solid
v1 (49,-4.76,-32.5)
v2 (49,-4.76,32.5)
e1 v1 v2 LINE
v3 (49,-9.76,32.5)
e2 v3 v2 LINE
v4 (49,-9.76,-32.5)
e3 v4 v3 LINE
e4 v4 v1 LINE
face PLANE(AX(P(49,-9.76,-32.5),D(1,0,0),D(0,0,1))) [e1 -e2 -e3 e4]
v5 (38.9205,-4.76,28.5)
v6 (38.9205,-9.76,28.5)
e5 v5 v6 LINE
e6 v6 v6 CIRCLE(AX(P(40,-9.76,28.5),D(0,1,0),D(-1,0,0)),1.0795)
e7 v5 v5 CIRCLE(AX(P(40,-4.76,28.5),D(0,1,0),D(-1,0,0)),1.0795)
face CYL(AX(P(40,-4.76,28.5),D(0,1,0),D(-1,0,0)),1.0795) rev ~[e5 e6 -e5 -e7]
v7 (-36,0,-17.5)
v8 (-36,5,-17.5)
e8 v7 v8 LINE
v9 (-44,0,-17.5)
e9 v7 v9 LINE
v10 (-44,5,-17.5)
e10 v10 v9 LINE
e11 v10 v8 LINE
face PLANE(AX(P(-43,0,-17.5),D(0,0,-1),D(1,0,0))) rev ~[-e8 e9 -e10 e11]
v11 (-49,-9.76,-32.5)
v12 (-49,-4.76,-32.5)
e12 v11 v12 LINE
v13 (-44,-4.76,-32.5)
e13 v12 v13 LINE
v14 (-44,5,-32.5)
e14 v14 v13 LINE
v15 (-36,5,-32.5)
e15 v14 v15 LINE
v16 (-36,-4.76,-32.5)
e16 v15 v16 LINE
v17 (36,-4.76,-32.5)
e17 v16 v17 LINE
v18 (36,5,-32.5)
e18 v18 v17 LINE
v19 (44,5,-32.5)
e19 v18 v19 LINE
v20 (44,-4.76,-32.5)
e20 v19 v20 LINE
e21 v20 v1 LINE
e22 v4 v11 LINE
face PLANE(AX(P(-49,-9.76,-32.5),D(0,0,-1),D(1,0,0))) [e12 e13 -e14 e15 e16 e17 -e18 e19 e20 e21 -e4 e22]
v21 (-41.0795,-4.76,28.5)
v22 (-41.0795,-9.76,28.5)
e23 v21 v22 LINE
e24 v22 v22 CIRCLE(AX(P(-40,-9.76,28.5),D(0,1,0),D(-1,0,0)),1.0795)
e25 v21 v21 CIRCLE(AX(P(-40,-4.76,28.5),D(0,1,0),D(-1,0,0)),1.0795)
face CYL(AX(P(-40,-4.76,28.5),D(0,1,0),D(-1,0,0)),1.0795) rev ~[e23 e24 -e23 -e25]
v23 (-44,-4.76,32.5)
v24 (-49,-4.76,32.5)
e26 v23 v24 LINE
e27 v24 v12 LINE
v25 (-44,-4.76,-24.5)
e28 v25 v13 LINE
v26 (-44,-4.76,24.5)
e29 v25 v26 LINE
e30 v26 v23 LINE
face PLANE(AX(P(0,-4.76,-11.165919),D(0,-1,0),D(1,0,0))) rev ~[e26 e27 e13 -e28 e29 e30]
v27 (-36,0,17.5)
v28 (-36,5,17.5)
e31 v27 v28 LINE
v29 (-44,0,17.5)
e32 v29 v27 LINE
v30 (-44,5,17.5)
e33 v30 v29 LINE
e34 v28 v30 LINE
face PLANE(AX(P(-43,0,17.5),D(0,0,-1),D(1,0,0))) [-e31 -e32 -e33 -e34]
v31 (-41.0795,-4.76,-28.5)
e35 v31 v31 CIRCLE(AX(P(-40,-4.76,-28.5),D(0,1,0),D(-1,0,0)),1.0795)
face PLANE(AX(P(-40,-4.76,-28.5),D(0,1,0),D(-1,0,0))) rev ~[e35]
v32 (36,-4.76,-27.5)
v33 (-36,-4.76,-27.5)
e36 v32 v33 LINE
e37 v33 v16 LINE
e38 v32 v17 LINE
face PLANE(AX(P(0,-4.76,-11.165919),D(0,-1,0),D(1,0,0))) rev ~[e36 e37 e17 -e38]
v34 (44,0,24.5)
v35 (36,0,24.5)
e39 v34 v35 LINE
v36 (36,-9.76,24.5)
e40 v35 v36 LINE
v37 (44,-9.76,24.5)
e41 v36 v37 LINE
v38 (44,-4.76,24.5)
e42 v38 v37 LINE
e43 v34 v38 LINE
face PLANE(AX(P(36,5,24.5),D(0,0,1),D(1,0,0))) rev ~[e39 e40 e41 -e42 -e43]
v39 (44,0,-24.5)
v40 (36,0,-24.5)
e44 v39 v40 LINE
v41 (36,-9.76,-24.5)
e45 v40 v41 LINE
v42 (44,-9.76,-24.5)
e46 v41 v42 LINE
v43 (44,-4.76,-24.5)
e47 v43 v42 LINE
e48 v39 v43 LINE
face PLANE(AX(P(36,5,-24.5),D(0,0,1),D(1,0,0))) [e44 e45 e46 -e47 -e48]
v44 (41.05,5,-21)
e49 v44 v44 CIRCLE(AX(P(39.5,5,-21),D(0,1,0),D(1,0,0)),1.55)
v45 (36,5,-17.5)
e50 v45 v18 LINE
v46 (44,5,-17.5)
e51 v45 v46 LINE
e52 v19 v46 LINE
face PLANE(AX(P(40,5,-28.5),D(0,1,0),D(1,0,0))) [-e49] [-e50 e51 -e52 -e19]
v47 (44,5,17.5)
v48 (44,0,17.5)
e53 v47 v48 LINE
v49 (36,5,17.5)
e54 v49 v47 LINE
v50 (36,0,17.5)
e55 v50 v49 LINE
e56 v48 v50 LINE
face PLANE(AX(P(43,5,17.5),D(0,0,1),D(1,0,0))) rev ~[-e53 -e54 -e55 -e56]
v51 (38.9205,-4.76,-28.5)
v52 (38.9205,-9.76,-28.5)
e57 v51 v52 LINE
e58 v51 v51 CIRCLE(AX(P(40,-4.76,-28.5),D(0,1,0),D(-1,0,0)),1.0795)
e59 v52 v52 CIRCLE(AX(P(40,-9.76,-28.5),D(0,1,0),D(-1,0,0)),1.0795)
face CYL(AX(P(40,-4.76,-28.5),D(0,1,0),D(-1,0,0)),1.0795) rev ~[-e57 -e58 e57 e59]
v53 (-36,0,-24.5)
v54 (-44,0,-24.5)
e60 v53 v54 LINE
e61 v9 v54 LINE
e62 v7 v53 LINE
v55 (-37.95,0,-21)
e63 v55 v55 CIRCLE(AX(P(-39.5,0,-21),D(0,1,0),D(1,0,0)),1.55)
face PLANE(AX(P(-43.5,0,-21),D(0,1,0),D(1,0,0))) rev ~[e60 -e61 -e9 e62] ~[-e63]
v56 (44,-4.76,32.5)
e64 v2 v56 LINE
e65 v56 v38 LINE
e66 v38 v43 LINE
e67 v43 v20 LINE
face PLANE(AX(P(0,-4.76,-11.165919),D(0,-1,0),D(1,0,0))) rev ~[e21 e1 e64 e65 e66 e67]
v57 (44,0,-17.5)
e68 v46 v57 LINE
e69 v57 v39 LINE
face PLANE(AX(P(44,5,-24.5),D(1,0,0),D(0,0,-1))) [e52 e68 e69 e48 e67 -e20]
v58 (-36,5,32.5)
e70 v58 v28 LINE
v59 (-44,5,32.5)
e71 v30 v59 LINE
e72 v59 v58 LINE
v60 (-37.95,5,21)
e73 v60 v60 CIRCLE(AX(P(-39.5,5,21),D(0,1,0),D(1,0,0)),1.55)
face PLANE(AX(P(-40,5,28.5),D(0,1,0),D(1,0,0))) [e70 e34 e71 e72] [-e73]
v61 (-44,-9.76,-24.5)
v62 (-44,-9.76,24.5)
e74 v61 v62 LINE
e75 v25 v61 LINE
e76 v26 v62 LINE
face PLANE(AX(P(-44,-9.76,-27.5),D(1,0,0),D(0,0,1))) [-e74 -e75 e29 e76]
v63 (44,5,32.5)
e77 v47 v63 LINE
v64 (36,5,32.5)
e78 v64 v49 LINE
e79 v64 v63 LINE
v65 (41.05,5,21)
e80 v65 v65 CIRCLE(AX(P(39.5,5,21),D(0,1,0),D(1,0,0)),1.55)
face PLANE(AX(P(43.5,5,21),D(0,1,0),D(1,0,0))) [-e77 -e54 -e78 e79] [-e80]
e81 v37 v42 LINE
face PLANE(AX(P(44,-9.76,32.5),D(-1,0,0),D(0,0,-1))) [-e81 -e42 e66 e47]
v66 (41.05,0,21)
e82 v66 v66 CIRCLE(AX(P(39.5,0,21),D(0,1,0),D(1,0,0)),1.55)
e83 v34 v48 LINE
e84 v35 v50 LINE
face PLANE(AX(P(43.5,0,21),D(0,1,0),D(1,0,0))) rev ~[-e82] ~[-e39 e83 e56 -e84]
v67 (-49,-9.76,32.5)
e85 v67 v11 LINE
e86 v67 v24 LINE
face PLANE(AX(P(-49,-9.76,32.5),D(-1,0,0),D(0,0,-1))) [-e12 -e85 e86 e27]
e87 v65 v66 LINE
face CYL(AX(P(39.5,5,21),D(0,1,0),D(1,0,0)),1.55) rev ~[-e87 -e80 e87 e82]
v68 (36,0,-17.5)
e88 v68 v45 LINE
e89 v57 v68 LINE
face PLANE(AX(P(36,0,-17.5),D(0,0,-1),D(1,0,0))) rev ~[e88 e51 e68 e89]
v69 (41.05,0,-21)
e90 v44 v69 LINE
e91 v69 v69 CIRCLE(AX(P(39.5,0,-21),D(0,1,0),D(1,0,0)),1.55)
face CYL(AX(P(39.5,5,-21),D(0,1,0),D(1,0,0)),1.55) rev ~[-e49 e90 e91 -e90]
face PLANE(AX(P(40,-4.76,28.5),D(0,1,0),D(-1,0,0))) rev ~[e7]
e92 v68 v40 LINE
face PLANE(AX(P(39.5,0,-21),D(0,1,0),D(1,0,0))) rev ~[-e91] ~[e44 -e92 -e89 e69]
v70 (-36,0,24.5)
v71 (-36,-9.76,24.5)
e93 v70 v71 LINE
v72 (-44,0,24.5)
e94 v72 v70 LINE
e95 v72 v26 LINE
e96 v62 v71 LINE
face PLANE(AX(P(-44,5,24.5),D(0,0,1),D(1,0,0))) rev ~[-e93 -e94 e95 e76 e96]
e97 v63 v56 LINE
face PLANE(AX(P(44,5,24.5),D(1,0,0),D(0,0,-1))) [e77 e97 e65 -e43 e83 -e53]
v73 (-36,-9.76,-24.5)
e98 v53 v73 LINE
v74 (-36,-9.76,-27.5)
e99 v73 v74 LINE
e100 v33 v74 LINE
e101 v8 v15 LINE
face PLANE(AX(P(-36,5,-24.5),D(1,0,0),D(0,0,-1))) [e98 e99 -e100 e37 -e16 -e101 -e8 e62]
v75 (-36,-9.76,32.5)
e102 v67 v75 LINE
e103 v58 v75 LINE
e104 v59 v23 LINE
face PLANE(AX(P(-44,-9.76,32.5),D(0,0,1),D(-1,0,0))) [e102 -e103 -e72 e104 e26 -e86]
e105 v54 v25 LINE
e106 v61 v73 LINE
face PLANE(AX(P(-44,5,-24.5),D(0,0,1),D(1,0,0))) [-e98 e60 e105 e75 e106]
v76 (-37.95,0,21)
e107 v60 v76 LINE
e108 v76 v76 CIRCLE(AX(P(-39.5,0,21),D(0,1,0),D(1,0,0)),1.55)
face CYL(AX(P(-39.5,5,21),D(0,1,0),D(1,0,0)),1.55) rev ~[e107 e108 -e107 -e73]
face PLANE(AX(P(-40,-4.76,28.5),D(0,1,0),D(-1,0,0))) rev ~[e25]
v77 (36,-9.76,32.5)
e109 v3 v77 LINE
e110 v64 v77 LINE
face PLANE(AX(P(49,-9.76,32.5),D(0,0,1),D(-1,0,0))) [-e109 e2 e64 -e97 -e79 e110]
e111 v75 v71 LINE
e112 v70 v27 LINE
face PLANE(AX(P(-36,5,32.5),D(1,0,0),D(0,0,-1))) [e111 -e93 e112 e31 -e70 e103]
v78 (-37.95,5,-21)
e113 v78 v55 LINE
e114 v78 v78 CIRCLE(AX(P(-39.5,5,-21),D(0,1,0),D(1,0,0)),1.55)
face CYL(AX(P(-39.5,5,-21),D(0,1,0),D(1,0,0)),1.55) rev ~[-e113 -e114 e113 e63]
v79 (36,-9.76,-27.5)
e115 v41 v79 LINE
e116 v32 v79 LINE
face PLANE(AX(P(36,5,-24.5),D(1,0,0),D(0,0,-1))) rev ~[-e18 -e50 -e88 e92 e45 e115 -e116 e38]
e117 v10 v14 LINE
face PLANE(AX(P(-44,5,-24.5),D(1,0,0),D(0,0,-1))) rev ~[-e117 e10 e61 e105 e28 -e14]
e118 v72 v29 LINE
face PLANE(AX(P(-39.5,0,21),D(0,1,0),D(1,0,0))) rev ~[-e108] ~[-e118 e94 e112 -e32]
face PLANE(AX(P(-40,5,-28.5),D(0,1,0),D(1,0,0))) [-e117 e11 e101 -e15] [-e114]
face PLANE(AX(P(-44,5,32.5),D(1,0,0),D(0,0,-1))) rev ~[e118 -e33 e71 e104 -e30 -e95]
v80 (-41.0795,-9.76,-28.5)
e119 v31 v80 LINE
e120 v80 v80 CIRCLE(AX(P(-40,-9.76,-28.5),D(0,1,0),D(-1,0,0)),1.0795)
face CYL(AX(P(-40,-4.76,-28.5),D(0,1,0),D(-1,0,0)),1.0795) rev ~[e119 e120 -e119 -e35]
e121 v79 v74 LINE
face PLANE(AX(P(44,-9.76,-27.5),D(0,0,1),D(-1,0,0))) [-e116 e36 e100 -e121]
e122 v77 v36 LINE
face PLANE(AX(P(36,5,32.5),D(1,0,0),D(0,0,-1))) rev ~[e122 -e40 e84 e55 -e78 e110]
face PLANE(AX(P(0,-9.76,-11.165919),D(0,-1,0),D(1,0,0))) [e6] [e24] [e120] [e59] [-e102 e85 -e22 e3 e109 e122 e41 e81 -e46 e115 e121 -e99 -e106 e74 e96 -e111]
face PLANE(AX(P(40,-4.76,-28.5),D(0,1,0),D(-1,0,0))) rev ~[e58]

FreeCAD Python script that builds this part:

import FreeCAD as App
import Part
import Sketcher


def add_polygon(sketch, points):
    """Adds a closed chain of lines whose ends are joined by coincident constraints."""
    first, n = sketch.GeometryCount, len(points)
    for a, b in zip(points, points[1:] + points[:1]):
        sketch.addGeometry(Part.LineSegment(App.Vector(*a, 0), App.Vector(*b, 0)), False)
    for i in range(n):
        sketch.addConstraint(Sketcher.Constraint("Coincident", first + i, 2, first + (i + 1) % n, 1))

doc = App.newDocument("Part")
body = doc.addObject("PartDesign::Body", "Body")

sketch1 = doc.addObject("Sketcher::SketchObject", "Sketch")
body.addObject(sketch1)
sketch1.AttachmentSupport = (doc.XZ_Plane, [""])
sketch1.MapMode = "FlatFace"
add_polygon(sketch1, [(-43, -24), (-43, -18), (-36, -18), (-36, -24)])
sketch1.addConstraint([
    Sketcher.Constraint("Vertical", 0),
    Sketcher.Constraint("Horizontal", 1),
    Sketcher.Constraint("Vertical", 2),
    Sketcher.Constraint("Horizontal", 3),
    Sketcher.Constraint("Equal", 3, 0),
    Sketcher.Constraint("DistanceX", 1, 1, 1, 2, 7.0),
    Sketcher.Constraint("DistanceX", 0, 2, -1, 1, 43.0),
    Sketcher.Constraint("DistanceY", 0, 2, -1, 1, 17.5),
])
pad1 = doc.addObject("PartDesign::Pad", "Pad")
body.addObject(pad1)
pad1.Profile = sketch1
pad1.Length = 5
pad1.Reversed = True
body2 = doc.addObject("PartDesign::Body", "Body001")

sketch2 = doc.addObject("Sketcher::SketchObject", "Sketch001")
body2.addObject(sketch2)
sketch2.AttachmentSupport = (doc.getObject("XZ_Plane001"), [""])
sketch2.MapMode = "FlatFace"
add_polygon(sketch2, [(36, -24), (36, -18), (43, -18), (43, -24)])
sketch2.addConstraint([
    Sketcher.Constraint("Vertical", 0),
    Sketcher.Constraint("Horizontal", 1),
    Sketcher.Constraint("Vertical", 2),
    Sketcher.Constraint("Horizontal", 3),
    Sketcher.Constraint("Equal", 3, 0),
    Sketcher.Constraint("DistanceX", 1, 1, 1, 2, 7.0),
    Sketcher.Constraint("DistanceX", -1, 1, 0, 2, 36.0),
    Sketcher.Constraint("DistanceY", 0, 2, -1, 1, 17.5),
])
pad2 = doc.addObject("PartDesign::Pad", "Pad001")
body2.addObject(pad2)
pad2.Profile = sketch2
pad2.Length = 5
pad2.Reversed = True
body3 = doc.addObject("PartDesign::Body", "Body002")

sketch3 = doc.addObject("Sketcher::SketchObject", "Sketch002")
body3.addObject(sketch3)
sketch3.AttachmentSupport = (doc.getObject("XZ_Plane002"), [""])
sketch3.MapMode = "FlatFace"
add_polygon(sketch3, [(-43, 18), (-43, 24), (-36, 24), (-36, 18)])
sketch3.addConstraint([
    Sketcher.Constraint("Vertical", 0),
    Sketcher.Constraint("Horizontal", 1),
    Sketcher.Constraint("Vertical", 2),
    Sketcher.Constraint("Horizontal", 3),
    Sketcher.Constraint("Equal", 3, 0),
    Sketcher.Constraint("DistanceX", 1, 1, 1, 2, 7.0),
    Sketcher.Constraint("DistanceX", 0, 2, -1, 1, 43.0),
    Sketcher.Constraint("DistanceY", -1, 1, 0, 2, 24.5),
])
pad3 = doc.addObject("PartDesign::Pad", "Pad002")
body3.addObject(pad3)
pad3.Profile = sketch3
pad3.Length = 5
pad3.Reversed = True
body4 = doc.addObject("PartDesign::Body", "Body003")

sketch4 = doc.addObject("Sketcher::SketchObject", "Sketch003")
body4.addObject(sketch4)
sketch4.AttachmentSupport = (doc.getObject("XZ_Plane003"), [""])
sketch4.MapMode = "FlatFace"
add_polygon(sketch4, [(36, 18), (36, 24), (43, 24), (43, 18)])
sketch4.addConstraint([
    Sketcher.Constraint("Vertical", 0),
    Sketcher.Constraint("Horizontal", 1),
    Sketcher.Constraint("Vertical", 2),
    Sketcher.Constraint("Horizontal", 3),
    Sketcher.Constraint("Equal", 3, 0),
    Sketcher.Constraint("DistanceX", 1, 1, 1, 2, 7.0),
    Sketcher.Constraint("DistanceX", -1, 1, 0, 2, 36.0),
    Sketcher.Constraint("DistanceY", -1, 1, 0, 2, 24.5),
])
pad4 = doc.addObject("PartDesign::Pad", "Pad003")
body4.addObject(pad4)
pad4.Profile = sketch4
pad4.Length = 5
pad4.Reversed = True
body5 = doc.addObject("PartDesign::Body", "Body004")
body5.AllowCompound = True

sketch5 = doc.addObject("Sketcher::SketchObject", "Sketch004")
body5.addObject(sketch5)
sketch5.AttachmentSupport = (doc.getObject("XZ_Plane004"), [""])
sketch5.MapMode = "FlatFace"
sketch5.AttachmentOffset = App.Placement(App.Vector(0, 0, -5), App.Rotation())
sketch5.addGeometry([
    Part.Circle(App.Vector(-39.5, -21, 0), App.Vector(0, 0, 1), 1.6),
    Part.Circle(App.Vector(39.5, -21, 0), App.Vector(0, 0, 1), 1.6),
    Part.Circle(App.Vector(39.5, 21, 0), App.Vector(0, 0, 1), 1.6),
    Part.Circle(App.Vector(-39.5, 21, 0), App.Vector(0, 0, 1), 1.6),
], False)
sketch5.addConstraint([
    Sketcher.Constraint("Equal", 0, 1),
    Sketcher.Constraint("Equal", 1, 2),
    Sketcher.Constraint("Equal", 2, 3),
    Sketcher.Constraint("Symmetric", 0, 3, 2, 3, -1, 1),
    Sketcher.Constraint("Symmetric", 1, 3, 3, 3, -1, 1),
    Sketcher.Constraint("Symmetric", 0, 3, 1, 3, -2),
    Sketcher.Constraint("Diameter", 0, 3.1),
    Sketcher.Constraint("DistanceY", 0, 3, -1, 1, 21.0),
    Sketcher.Constraint("DistanceX", 0, 3, 1, 3, 79.0),
])
pad5 = doc.addObject("PartDesign::Pad", "Pad004")
body5.addObject(pad5)
pad5.Profile = sketch5
pad5.Length = 6
doc.recompute()

body6 = doc.addObject("PartDesign::Body", "Body005")
body6.BaseFeature = body5
boolean = doc.addObject("PartDesign::Boolean", "Boolean")
body.addObject(boolean)
boolean.Type = "Cut"
boolean.addObjects([body6])
doc.recompute()

body7 = doc.addObject("PartDesign::Body", "Body006")
body7.BaseFeature = body5
boolean2 = doc.addObject("PartDesign::Boolean", "Boolean001")
body2.addObject(boolean2)
boolean2.Type = "Cut"
boolean2.addObjects([body7])
doc.recompute()

body8 = doc.addObject("PartDesign::Body", "Body007")
body8.BaseFeature = body5
boolean3 = doc.addObject("PartDesign::Boolean", "Boolean002")
body3.addObject(boolean3)
boolean3.Type = "Cut"
boolean3.addObjects([body8])
doc.recompute()

boolean4 = doc.addObject("PartDesign::Boolean", "Boolean003")
body4.addObject(boolean4)
boolean4.Type = "Cut"
boolean4.addObjects([body5])
body.AllowCompound = True
doc.recompute()

boolean5 = doc.addObject("PartDesign::Boolean", "Boolean004")
body.addObject(boolean5)
boolean5.Type = "Fuse"
boolean5.addObjects([body2])
doc.recompute()

boolean6 = doc.addObject("PartDesign::Boolean", "Boolean005")
body.addObject(boolean6)
boolean6.Type = "Fuse"
boolean6.addObjects([body3])
doc.recompute()

boolean7 = doc.addObject("PartDesign::Boolean", "Boolean006")
body.addObject(boolean7)
boolean7.Type = "Fuse"
boolean7.addObjects([body4])

sketch6 = doc.addObject("Sketcher::SketchObject", "Sketch005")
body.addObject(sketch6)
sketch6.AttachmentSupport = (doc.XZ_Plane, [""])
sketch6.MapMode = "FlatFace"
sketch6.AttachmentOffset = App.Placement(App.Vector(0, 0, -5), App.Rotation())
add_polygon(sketch6, [(36, -32), (36, -24), (44, -24), (44, -32)])
add_polygon(sketch6, [(36, 24), (36, 32), (44, 32), (44, 24)])
add_polygon(sketch6, [(-44, 24), (-44, 32), (-36, 32), (-36, 24)])
add_polygon(sketch6, [(-44, -32), (-44, -24), (-36, -24), (-36, -32)])
sketch6.addConstraint([
    Sketcher.Constraint("Vertical", 0),
    Sketcher.Constraint("Horizontal", 1),
    Sketcher.Constraint("Vertical", 2),
    Sketcher.Constraint("Horizontal", 3),
    Sketcher.Constraint("Vertical", 4),
    Sketcher.Constraint("Horizontal", 5),
    Sketcher.Constraint("Vertical", 6),
    Sketcher.Constraint("Horizontal", 7),
    Sketcher.Constraint("Vertical", 8),
    Sketcher.Constraint("Horizontal", 9),
    Sketcher.Constraint("Vertical", 10),
    Sketcher.Constraint("Horizontal", 11),
    Sketcher.Constraint("Vertical", 12),
    Sketcher.Constraint("Horizontal", 13),
    Sketcher.Constraint("Vertical", 14),
    Sketcher.Constraint("Horizontal", 15),
    Sketcher.Constraint("Symmetric", 2, 2, 8, 2, -1, 1),
    Sketcher.Constraint("Symmetric", 0, 2, 10, 2, -1, 1),
    Sketcher.Constraint("Symmetric", 6, 2, 12, 2, -1, 1),
    Sketcher.Constraint("Symmetric", 4, 2, 14, 2, -1, 1),
    Sketcher.Constraint("Symmetric", 5, 2, 8, 2, -2),
    Sketcher.Constraint("Symmetric", 7, 2, 10, 2, -2),
    Sketcher.Constraint("Equal", 15, 0),
    Sketcher.Constraint("DistanceX", 1, 1, 1, 2, 8.0),
    Sketcher.Constraint("DistanceX", -1, 1, 0, 2, 36.0),
    Sketcher.Constraint("DistanceY", 0, 2, 4, 2, 57.0),
])
pad6 = doc.addObject("PartDesign::Pad", "Pad005")
body.addObject(pad6)
pad6.Profile = sketch6
pad6.Length = 14.76

sketch7 = doc.addObject("Sketcher::SketchObject", "Sketch006")
body.addObject(sketch7)
sketch7.AttachmentSupport = (doc.XZ_Plane, [""])
sketch7.MapMode = "FlatFace"
sketch7.AttachmentOffset = App.Placement(App.Vector(0, 0, 9.76), App.Rotation())
add_polygon(sketch7, [(-49, 32), (-49, -32), (49, -32), (49, 32), (44, 32), (44, -28), (-44, -28), (-44, 32)])
sketch7.addConstraint([
    Sketcher.Constraint("Vertical", 0),
    Sketcher.Constraint("Horizontal", 1),
    Sketcher.Constraint("Vertical", 2),
    Sketcher.Constraint("Horizontal", 3),
    Sketcher.Constraint("Vertical", 4),
    Sketcher.Constraint("Horizontal", 5),
    Sketcher.Constraint("Vertical", 6),
    Sketcher.Constraint("Horizontal", 7),
    Sketcher.Constraint("Symmetric", 0, 2, 2, 2, -1, 1),
    Sketcher.Constraint("Symmetric", 3, 2, 6, 2, -2),
    Sketcher.Constraint("DistanceX", 1, 1, 1, 2, 98.0),
    Sketcher.Constraint("DistanceX", 3, 2, 3, 1, 5.0),
    Sketcher.Constraint("DistanceY", 0, 2, 0, 1, 65.0),
    Sketcher.Constraint("DistanceY", 4, 2, 4, 1, 60.0),
])
pad7 = doc.addObject("PartDesign::Pad", "Pad006")
body.addObject(pad7)
pad7.Profile = sketch7
pad7.Length = 5
pad7.Reversed = True

sketch8 = doc.addObject("Sketcher::SketchObject", "Sketch007")
body.addObject(sketch8)
sketch8.AttachmentSupport = (doc.XZ_Plane, [""])
sketch8.MapMode = "FlatFace"
sketch8.AttachmentOffset = App.Placement(App.Vector(0, 0, 4.76), App.Rotation())
sketch8.addGeometry([
    Part.Circle(App.Vector(-40, 28.5, 0), App.Vector(0, 0, 1), 1.1),
    Part.Circle(App.Vector(-40, -28.5, 0), App.Vector(0, 0, 1), 1.1),
    Part.Circle(App.Vector(40, -28.5, 0), App.Vector(0, 0, 1), 1.1),
    Part.Circle(App.Vector(40, 28.5, 0), App.Vector(0, 0, 1), 1.1),
], False)
sketch8.addConstraint([
    Sketcher.Constraint("Equal", 0, 1),
    Sketcher.Constraint("Equal", 1, 2),
    Sketcher.Constraint("Equal", 2, 3),
    Sketcher.Constraint("Symmetric", 0, 3, 2, 3, -1, 1),
    Sketcher.Constraint("Symmetric", 1, 3, 3, 3, -1, 1),
    Sketcher.Constraint("Symmetric", 1, 3, 2, 3, -2),
    Sketcher.Constraint("Diameter", 0, 2.159),
    Sketcher.Constraint("DistanceX", 0, 3, -1, 1, 40.0),
    Sketcher.Constraint("DistanceY", 1, 3, 0, 3, 57.0),
])
pocket1 = doc.addObject("PartDesign::Pocket", "Pocket")
body.addObject(pocket1)
pocket1.Profile = sketch8
pocket1.Length = 10
pocket1.Reversed = True

sketch9 = doc.addObject("Sketcher::SketchObject", "Sketch008")
body.addObject(sketch9)
sketch9.AttachmentSupport = (doc.XZ_Plane, [""])
sketch9.MapMode = "FlatFace"
sketch9.AttachmentOffset = App.Placement(App.Vector(0, 0, -5), App.Rotation())
add_polygon(sketch9, [(43, 17.5), (43, 24.5), (44, 24.5), (44, 17.5)])
add_polygon(sketch9, [(43, -24.5), (43, -17.5), (44, -17.5), (44, -24.5)])
add_polygon(sketch9, [(-44, -24.5), (-44, -17.5), (-43, -17.5), (-43, -24.5)])
add_polygon(sketch9, [(-44, 17.5), (-44, 24.5), (-43, 24.5), (-43, 17.5)])
sketch9.addConstraint([
    Sketcher.Constraint("Vertical", 0),
    Sketcher.Constraint("Horizontal", 1),
    Sketcher.Constraint("Vertical", 2),
    Sketcher.Constraint("Horizontal", 3),
    Sketcher.Constraint("Vertical", 4),
    Sketcher.Constraint("Horizontal", 5),
    Sketcher.Constraint("Vertical", 6),
    Sketcher.Constraint("Horizontal", 7),
    Sketcher.Constraint("Vertical", 8),
    Sketcher.Constraint("Horizontal", 9),
    Sketcher.Constraint("Vertical", 10),
    Sketcher.Constraint("Horizontal", 11),
    Sketcher.Constraint("Vertical", 12),
    Sketcher.Constraint("Horizontal", 13),
    Sketcher.Constraint("Vertical", 14),
    Sketcher.Constraint("Horizontal", 15),
    Sketcher.Constraint("Symmetric", 2, 2, 8, 2, -1, 1),
    Sketcher.Constraint("Symmetric", 0, 2, 10, 2, -1, 1),
    Sketcher.Constraint("Symmetric", 6, 2, 12, 2, -1, 1),
    Sketcher.Constraint("Symmetric", 4, 2, 14, 2, -1, 1),
    Sketcher.Constraint("Symmetric", 5, 2, 8, 2, -2),
    Sketcher.Constraint("Symmetric", 7, 2, 10, 2, -2),
    Sketcher.Constraint("DistanceX", 1, 1, 1, 2, 1.0),
    Sketcher.Constraint("DistanceY", 0, 1, 0, 2, 7.0),
    Sketcher.Constraint("DistanceX", -1, 1, 0, 2, 43.0),
    Sketcher.Constraint("DistanceY", 4, 2, 3, 2, 35.0),
])
pad8 = doc.addObject("PartDesign::Pad", "Pad007")
body.addObject(pad8)
pad8.Profile = sketch9
pad8.Length = 5

doc.recompute()
